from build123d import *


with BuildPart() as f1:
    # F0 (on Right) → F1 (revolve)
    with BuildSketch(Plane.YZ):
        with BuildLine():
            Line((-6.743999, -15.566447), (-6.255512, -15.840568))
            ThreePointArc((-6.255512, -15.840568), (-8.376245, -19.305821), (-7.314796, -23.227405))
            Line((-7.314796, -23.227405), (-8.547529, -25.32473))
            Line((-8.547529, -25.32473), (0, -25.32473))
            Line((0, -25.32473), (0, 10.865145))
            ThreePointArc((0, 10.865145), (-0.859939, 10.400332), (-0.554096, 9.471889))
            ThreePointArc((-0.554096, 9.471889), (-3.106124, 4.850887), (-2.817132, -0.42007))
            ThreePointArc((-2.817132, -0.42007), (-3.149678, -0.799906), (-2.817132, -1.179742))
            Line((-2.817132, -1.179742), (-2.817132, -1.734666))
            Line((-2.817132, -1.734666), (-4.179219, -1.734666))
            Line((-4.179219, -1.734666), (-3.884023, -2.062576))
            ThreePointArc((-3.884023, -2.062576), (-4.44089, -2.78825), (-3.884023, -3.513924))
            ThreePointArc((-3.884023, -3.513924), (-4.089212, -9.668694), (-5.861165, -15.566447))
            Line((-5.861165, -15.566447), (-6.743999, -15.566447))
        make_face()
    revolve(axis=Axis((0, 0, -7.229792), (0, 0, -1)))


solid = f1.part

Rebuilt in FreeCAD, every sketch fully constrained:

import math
import FreeCAD as App
import Part
import Sketcher
from FreeCAD import Vector

doc = App.newDocument("Part")
params = doc.addObject("Spreadsheet::Sheet", "Params")
for row, (alias, value) in enumerate([
    ("revolution_angle", "360 deg"),
], start=1):
    params.set(f"A{row}", alias)
    params.set(f"B{row}", "=" + value)
    params.setAlias(f"B{row}", alias)

body = doc.addObject("PartDesign::Body", "Body")

# Sketch on YZ plane
sketch1 = body.newObject("Sketcher::SketchObject", "Sketch")
sketch1.AttachmentSupport = (doc.getObject("YZ_Plane"), [""])
sketch1.MapMode = "FlatFace"
sketch1.addGeometry([
    Part.LineSegment(Vector(-6.74, -15.57, 0), Vector(-6.26, -15.84, 0)),  # 0
    Part.ArcOfCircle(Part.Circle(Vector(-3.29, -20.03, 0), Vector(0, 0, 1), 5.13), math.radians(125), math.radians(218)),  # 1
    Part.LineSegment(Vector(-7.31, -23.23, 0), Vector(-8.55, -25.32, 0)),  # 2
    Part.LineSegment(Vector(-8.55, -25.32, 0), Vector(0, -25.32, 0)),  # 3
    Part.LineSegment(Vector(0, -25.32, 0), Vector(0, 10.87, 0)),  # 4
    Part.ArcOfCircle(Part.Circle(Vector(-0.15, 10.12, 0), Vector(0, 0, 1), 0.76), math.radians(78), math.radians(238)),  # 5
    Part.ArcOfCircle(Part.Circle(Vector(6.21, 2.72, 0), Vector(0, 0, 1), 9.56), math.radians(135), math.radians(199)),  # 6
    Part.ArcOfCircle(Part.Circle(Vector(-2.77, -0.8, 0), Vector(0, 0, 1), 0.38), math.radians(98), math.radians(262)),  # 7
    Part.LineSegment(Vector(-2.82, -1.18, 0), Vector(-2.82, -1.73, 0)),  # 8
    Part.LineSegment(Vector(-2.82, -1.73, 0), Vector(-4.18, -1.73, 0)),  # 9
    Part.LineSegment(Vector(-4.18, -1.73, 0), Vector(-3.88, -2.06, 0)),  # 10
    Part.ArcOfCircle(Part.Circle(Vector(-3.69, -2.79, 0), Vector(0, 0, 1), 0.75), math.radians(105), math.radians(255)),  # 11
    Part.ArcOfCircle(Part.Circle(Vector(-27.66, -5.8, 0), Vector(0, 0, 1), 23.89), math.radians(-24), math.radians(5)),  # 12
    Part.LineSegment(Vector(-5.86, -15.57, 0), Vector(-6.74, -15.57, 0)),  # 13
], False)
sketch1.addConstraint([
    Sketcher.Constraint("Coincident", 0, 2, 1, 1),
    Sketcher.Constraint("Coincident", 1, 2, 2, 1),
    Sketcher.Constraint("Coincident", 2, 2, 3, 1),
    Sketcher.Constraint("Coincident", 3, 2, 4, 1),
    Sketcher.Constraint("Coincident", 4, 2, 5, 1),
    Sketcher.Constraint("Coincident", 5, 2, 6, 1),
    Sketcher.Constraint("Coincident", 6, 2, 7, 1),
    Sketcher.Constraint("Coincident", 7, 2, 8, 1),
    Sketcher.Constraint("Coincident", 8, 2, 9, 1),
    Sketcher.Constraint("Coincident", 9, 2, 10, 1),
    Sketcher.Constraint("Coincident", 10, 2, 11, 1),
    Sketcher.Constraint("Coincident", 11, 2, 12, 2),
    Sketcher.Constraint("Coincident", 12, 1, 13, 1),
    Sketcher.Constraint("Coincident", 13, 2, 0, 1),
    Sketcher.Constraint("Horizontal", 3),
    Sketcher.Constraint("Vertical", 4),
    Sketcher.Constraint("Vertical", 8),
    Sketcher.Constraint("Horizontal", 9),
    Sketcher.Constraint("Horizontal", 13),
    Sketcher.Constraint("PointOnObject", 3, 2, -2),
    Sketcher.Constraint("Vertical", 6, 2, 7, 2),
    Sketcher.Constraint("Vertical", 10, 2, 11, 2),
    Sketcher.Constraint("Radius", 6, 9.5616),
    Sketcher.Constraint("Radius", 7, 0.383198),
    Sketcher.Constraint("Radius", 5, 0.761639),
    Sketcher.Constraint("Radius", 11, 0.75126),
    Sketcher.Constraint("Radius", 12, 23.88561),
    Sketcher.Constraint("DistanceX", 13, 2, -1, 1, 6.743999),
    Sketcher.Constraint("Radius", 1, 5.134324),
    Sketcher.Constraint("DistanceX", 3, 1, 3, 2, 8.547529),
    Sketcher.Constraint("DistanceX", 11, 3, 6, 3, 9.9043),
    Sketcher.Constraint("DistanceX", 12, 3, 7, 3, 24.893301),
    Sketcher.Constraint("DistanceX", 0, 2, 1, 3, 2.9616),
    Sketcher.Constraint("DistanceY", 1, 2, 7, 3, 22.427499),
    Sketcher.Constraint("DistanceX", 2, 2, 11, 3, 4.857899),
    Sketcher.Constraint("DistanceX", 11, 3, 6, 2, 0.872498),
    Sketcher.Constraint("Distance", 10, 0.441209),
    Sketcher.Constraint("DistanceX", 9, 2, 9, 1, 1.362087),
    Sketcher.Constraint("DistanceX", 13, 2, 13, 1, 0.882834),
    Sketcher.Constraint("DistanceY", 4, 1, 4, 2, 36.189875),
    Sketcher.Constraint("DistanceY", 8, 2, 8, 1, 0.554924),
    Sketcher.Constraint("DistanceX", 1, 3, -1, 1, 3.293912),
    Sketcher.Constraint("DistanceY", -1, 1, 5, 3, 10.118871),
    Sketcher.Constraint("DistanceY", -1, 1, 6, 3, 2.71852),
    Sketcher.Constraint("DistanceX", 7, 3, -1, 1, 2.76648),
    Sketcher.Constraint("DistanceY", 11, 3, -1, 1, 2.78825),
    Sketcher.Constraint("DistanceY", 2, 2, -1, 1, 25.32473),
    Sketcher.Constraint("DistanceY", 1, 3, 7, 3, 19.23473),
])
revolution = body.newObject("PartDesign::Revolution", "Revolution")
revolution.Profile = sketch1
revolution.ReferenceAxis = (sketch1, ["V_Axis"])
revolution.setExpression("Angle", "Params.revolution_angle")

doc.recompute()
